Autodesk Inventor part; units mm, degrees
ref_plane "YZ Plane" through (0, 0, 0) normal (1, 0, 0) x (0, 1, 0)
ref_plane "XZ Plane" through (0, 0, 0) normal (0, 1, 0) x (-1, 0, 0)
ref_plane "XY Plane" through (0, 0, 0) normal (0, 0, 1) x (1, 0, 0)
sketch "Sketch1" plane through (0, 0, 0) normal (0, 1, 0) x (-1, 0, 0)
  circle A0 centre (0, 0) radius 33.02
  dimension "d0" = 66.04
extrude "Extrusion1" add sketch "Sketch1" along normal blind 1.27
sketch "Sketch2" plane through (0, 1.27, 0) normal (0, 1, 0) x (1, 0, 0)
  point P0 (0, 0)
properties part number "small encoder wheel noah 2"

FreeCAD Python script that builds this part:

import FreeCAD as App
import Part
import Sketcher
Q = App.Units.Quantity

doc = App.newDocument("Part")
body = doc.addObject("PartDesign::Body", "Body")

# Sketch on XZ plane
sketch1 = body.newObject("Sketcher::SketchObject", "Sketch")
sketch1.AttachmentSupport = (doc.getObject("XZ_Plane"), [""])
sketch1.MapMode = "FlatFace"
sketch1.addGeometry(Part.Circle(App.Vector(0, 0, 0), App.Vector(0, 0, 1), 33), False)
sketch1.addConstraint([
    Sketcher.Constraint("Coincident", 0, 3, -1, 1),
    Sketcher.Constraint("Diameter", 0, Q("2.6 in")),
])
pad1 = body.newObject("PartDesign::Pad", "Pad")
pad1.Profile = sketch1
pad1.Length = Q("0.05 in")
pad1.Reversed = True

doc.recompute()
